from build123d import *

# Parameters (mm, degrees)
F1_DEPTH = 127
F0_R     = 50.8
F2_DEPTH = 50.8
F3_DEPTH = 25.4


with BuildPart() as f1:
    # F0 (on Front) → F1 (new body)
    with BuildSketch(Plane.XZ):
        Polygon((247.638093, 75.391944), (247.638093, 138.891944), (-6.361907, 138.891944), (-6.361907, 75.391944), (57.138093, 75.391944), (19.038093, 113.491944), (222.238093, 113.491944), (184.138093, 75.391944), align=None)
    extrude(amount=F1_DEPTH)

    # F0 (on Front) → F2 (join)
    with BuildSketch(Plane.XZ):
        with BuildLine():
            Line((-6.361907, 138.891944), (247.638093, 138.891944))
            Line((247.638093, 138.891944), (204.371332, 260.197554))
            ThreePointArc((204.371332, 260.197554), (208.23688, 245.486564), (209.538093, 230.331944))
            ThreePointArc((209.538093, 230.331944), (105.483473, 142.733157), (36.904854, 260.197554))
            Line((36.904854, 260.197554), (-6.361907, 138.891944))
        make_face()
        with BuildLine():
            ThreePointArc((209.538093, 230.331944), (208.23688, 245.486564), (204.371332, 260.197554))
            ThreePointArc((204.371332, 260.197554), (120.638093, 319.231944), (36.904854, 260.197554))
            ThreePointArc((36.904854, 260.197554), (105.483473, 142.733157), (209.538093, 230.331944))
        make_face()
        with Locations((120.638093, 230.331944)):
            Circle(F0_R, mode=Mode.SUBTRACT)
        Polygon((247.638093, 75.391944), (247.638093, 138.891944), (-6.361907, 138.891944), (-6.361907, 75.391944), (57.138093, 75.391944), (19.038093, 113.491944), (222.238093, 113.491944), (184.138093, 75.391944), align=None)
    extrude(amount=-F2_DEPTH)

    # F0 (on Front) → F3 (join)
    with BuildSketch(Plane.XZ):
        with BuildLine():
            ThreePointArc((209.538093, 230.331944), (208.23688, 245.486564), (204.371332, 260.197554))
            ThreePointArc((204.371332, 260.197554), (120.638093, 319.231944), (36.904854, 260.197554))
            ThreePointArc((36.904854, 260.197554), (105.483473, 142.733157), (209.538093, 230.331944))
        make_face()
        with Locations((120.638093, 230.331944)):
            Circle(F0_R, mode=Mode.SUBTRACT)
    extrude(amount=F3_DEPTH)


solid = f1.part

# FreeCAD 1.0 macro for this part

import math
import FreeCAD as App
import Part
import Sketcher
from FreeCAD import Vector
Q = App.Units.Quantity

doc = App.newDocument("Part")
body = doc.addObject("PartDesign::Body", "Body")

# Sketch on XZ plane
sketch1 = body.newObject("Sketcher::SketchObject", "Sketch")
sketch1.AttachmentSupport = (doc.getObject("XZ_Plane"), [""])
sketch1.MapMode = "FlatFace"
sketch1.addGeometry([
    Part.LineSegment(Vector(248, 75, 0), Vector(248, 139, 0)),  # 0
    Part.LineSegment(Vector(248, 139, 0), Vector(-6, 139, 0)),  # 1
    Part.LineSegment(Vector(-6, 139, 0), Vector(-6, 75, 0)),  # 2
    Part.LineSegment(Vector(-6, 75, 0), Vector(57, 75, 0)),  # 3
    Part.LineSegment(Vector(57, 75, 0), Vector(19, 113, 0)),  # 4
    Part.LineSegment(Vector(19, 113, 0), Vector(222, 113, 0)),  # 5
    Part.LineSegment(Vector(222, 113, 0), Vector(184, 75, 0)),  # 6
    Part.LineSegment(Vector(184, 75, 0), Vector(248, 75, 0)),  # 7
], False)
sketch1.addConstraint([
    Sketcher.Constraint("Coincident", 0, 2, 1, 1),
    Sketcher.Constraint("Coincident", 1, 2, 2, 1),
    Sketcher.Constraint("Coincident", 2, 2, 3, 1),
    Sketcher.Constraint("Coincident", 3, 2, 4, 1),
    Sketcher.Constraint("Coincident", 4, 2, 5, 1),
    Sketcher.Constraint("Coincident", 5, 2, 6, 1),
    Sketcher.Constraint("Coincident", 6, 2, 7, 1),
    Sketcher.Constraint("Coincident", 7, 2, 0, 1),
    Sketcher.Constraint("Vertical", 0),
    Sketcher.Constraint("Horizontal", 1),
    Sketcher.Constraint("Vertical", 2),
    Sketcher.Constraint("Horizontal", 3),
    Sketcher.Constraint("Horizontal", 5),
    Sketcher.Constraint("Horizontal", 7),
    Sketcher.Constraint("Perpendicular", 4, 6),
    Sketcher.Constraint("Horizontal", 3, 2, 6, 2),
    Sketcher.Constraint("Equal", 3, 7),
    Sketcher.Constraint("Equal", 7, 0),
    Sketcher.Constraint("Equal", 4, 6),
    Sketcher.Constraint("DistanceX", 1, 2, 1, 1, Q("10 in")),
    Sketcher.Constraint("DistanceX", 5, 1, 5, 2, Q("8 in")),
    Sketcher.Constraint("DistanceX", 3, 1, 3, 2, Q("2.5 in")),
    Sketcher.Constraint("DistanceX", -1, 1, 0, 2, Q("247.638093 mm")),
    Sketcher.Constraint("DistanceY", -1, 1, 0, 2, Q("138.891944 mm")),
])
pad1 = body.newObject("PartDesign::Pad", "Pad")
pad1.Profile = sketch1
pad1.Length = Q("5 in")

# Sketch on XZ plane
sketch2 = body.newObject("Sketcher::SketchObject", "Sketch001")
sketch2.AttachmentSupport = (doc.getObject("XZ_Plane"), [""])
sketch2.MapMode = "FlatFace"
sketch2.addGeometry([
    Part.LineSegment(Vector(37, 260, 0), Vector(-6, 139, 0)),  # 0
    Part.LineSegment(Vector(-6, 139, 0), Vector(-6, 75, 0)),  # 1
    Part.LineSegment(Vector(-6, 75, 0), Vector(57, 75, 0)),  # 2
    Part.LineSegment(Vector(57, 75, 0), Vector(19, 113, 0)),  # 3
    Part.LineSegment(Vector(19, 113, 0), Vector(222, 113, 0)),  # 4
    Part.LineSegment(Vector(222, 113, 0), Vector(184, 75, 0)),  # 5
    Part.LineSegment(Vector(184, 75, 0), Vector(248, 75, 0)),  # 6
    Part.LineSegment(Vector(248, 75, 0), Vector(248, 139, 0)),  # 7
    Part.LineSegment(Vector(248, 139, 0), Vector(204, 260, 0)),  # 8
    Part.ArcOfCircle(Part.Circle(Vector(121, 230, 0), Vector(0, 0, 1), 89), math.radians(20), math.radians(160)),  # 9
    Part.Circle(Vector(121, 230, 0), Vector(0, 0, 1), 51),  # 10
], False)
sketch2.addConstraint([
    Sketcher.Constraint("Coincident", 0, 2, 1, 1),
    Sketcher.Constraint("Coincident", 1, 2, 2, 1),
    Sketcher.Constraint("Coincident", 2, 2, 3, 1),
    Sketcher.Constraint("Coincident", 3, 2, 4, 1),
    Sketcher.Constraint("Coincident", 4, 2, 5, 1),
    Sketcher.Constraint("Coincident", 5, 2, 6, 1),
    Sketcher.Constraint("Coincident", 6, 2, 7, 1),
    Sketcher.Constraint("Coincident", 7, 2, 8, 1),
    Sketcher.Constraint("Tangent", 8, 2, 9, 1),
    Sketcher.Constraint("Tangent", 9, 2, 0, 1),
    Sketcher.Constraint("Vertical", 1),
    Sketcher.Constraint("Horizontal", 2),
    Sketcher.Constraint("Horizontal", 4),
    Sketcher.Constraint("Horizontal", 6),
    Sketcher.Constraint("Vertical", 7),
    Sketcher.Constraint("Coincident", 10, 3, 9, 3),
    Sketcher.Constraint("Perpendicular", 3, 5),
    Sketcher.Constraint("Horizontal", 2, 2, 5, 2),
    Sketcher.Constraint("Horizontal", 0, 2, 7, 2),
    Sketcher.Constraint("Horizontal", 8, 2, 9, 2),
    Sketcher.Constraint("Equal", 2, 6),
    Sketcher.Constraint("Equal", 6, 1),
    Sketcher.Constraint("Equal", 3, 5),
    Sketcher.Constraint("Diameter", 10, Q("4 in")),
    Sketcher.Constraint("Radius", 9, Q("3.5 in")),
    Sketcher.Constraint("DistanceX", 4, 1, 4, 2, Q("8 in")),
    Sketcher.Constraint("DistanceX", 2, 1, 2, 2, Q("2.5 in")),
    Sketcher.Constraint("DistanceX", 0, 2, 10, 3, Q("5 in")),
    Sketcher.Constraint("DistanceY", 0, 2, 10, 3, Q("3.6 in")),
    Sketcher.Constraint("DistanceX", -1, 1, 8, 2, Q("204.371332 mm")),
    Sketcher.Constraint("DistanceY", -1, 1, 9, 3, Q("230.331944 mm")),
])
pad2 = body.newObject("PartDesign::Pad", "Pad001")
pad2.Profile = sketch2
pad2.Length = Q("2 in")
pad2.Reversed = True

# Sketch on XZ plane
sketch3 = body.newObject("Sketcher::SketchObject", "Sketch002")
sketch3.AttachmentSupport = (doc.getObject("XZ_Plane"), [""])
sketch3.MapMode = "FlatFace"
sketch3.addGeometry([
    Part.ArcOfCircle(Part.Circle(Vector(121, 230, 0), Vector(0, 0, 1), 89), math.radians(0), math.radians(19.63)),
    Part.ArcOfCircle(Part.Circle(Vector(121, 230, 0), Vector(0, 0, 1), 89), math.radians(20), math.radians(160)),
    Part.ArcOfCircle(Part.Circle(Vector(121, 230, 0), Vector(0, 0, 1), 89), math.radians(160), math.radians(360)),
    Part.Circle(Vector(121, 230, 0), Vector(0, 0, 1), 51),
], False)
sketch3.addConstraint([
    Sketcher.Constraint("Tangent", 0, 2, 1, 1),
    Sketcher.Constraint("Tangent", 1, 2, 2, 1),
    Sketcher.Constraint("Tangent", 2, 2, 0, 1),
    Sketcher.Constraint("Coincident", 3, 3, 0, 3),
    Sketcher.Constraint("Horizontal", 0, 2, 1, 2),
    Sketcher.Constraint("Horizontal", 3, 3, 2, 2),
    Sketcher.Constraint("Diameter", 3, Q("4 in")),
    Sketcher.Constraint("Radius", 0, Q("3.4999999 in")),
    Sketcher.Constraint("DistanceY", 0, 3, 0, 2, Q("29.86561 mm")),
    Sketcher.Constraint("DistanceX", -1, 1, 0, 3, Q("120.638095 mm")),
    Sketcher.Constraint("DistanceY", -1, 1, 0, 3, Q("230.331944 mm")),
])
pad3 = body.newObject("PartDesign::Pad", "Pad002")
pad3.Profile = sketch3
pad3.Length = Q("1 in")

doc.recompute()
